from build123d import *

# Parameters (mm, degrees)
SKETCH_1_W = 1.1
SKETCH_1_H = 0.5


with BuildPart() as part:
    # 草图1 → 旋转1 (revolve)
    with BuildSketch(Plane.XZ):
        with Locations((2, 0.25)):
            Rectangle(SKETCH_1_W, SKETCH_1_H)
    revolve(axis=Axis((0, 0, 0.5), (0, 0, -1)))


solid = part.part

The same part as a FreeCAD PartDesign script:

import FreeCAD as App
import Part
import Sketcher


def add_polygon(sketch, points):
    """Adds a closed chain of lines whose ends are joined by coincident constraints."""
    first, n = sketch.GeometryCount, len(points)
    for a, b in zip(points, points[1:] + points[:1]):
        sketch.addGeometry(Part.LineSegment(App.Vector(*a, 0), App.Vector(*b, 0)), False)
    for i in range(n):
        sketch.addConstraint(Sketcher.Constraint("Coincident", first + i, 2, first + (i + 1) % n, 1))

doc = App.newDocument("Part")
params = doc.addObject("Spreadsheet::Sheet", "Params")
for row, (alias, value) in enumerate([
    ("sketch1_width", "1.1 mm"),
    ("sketch1_height", "0.5 mm"),
    ("revolution_angle", "360 deg"),
], start=1):
    params.set(f"A{row}", alias)
    params.set(f"B{row}", "=" + value)
    params.setAlias(f"B{row}", alias)

body = doc.addObject("PartDesign::Body", "Body")

sketch1 = doc.addObject("Sketcher::SketchObject", "Sketch")
body.addObject(sketch1)
sketch1.AttachmentSupport = (doc.XZ_Plane, [""])
sketch1.MapMode = "FlatFace"
add_polygon(sketch1, [(1.4, 0.5), (1.4, 0), (2.5, 0), (2.5, 0.5)])
sketch1.addConstraint([
    Sketcher.Constraint("Vertical", 0),
    Sketcher.Constraint("Horizontal", 1),
    Sketcher.Constraint("Vertical", 2),
    Sketcher.Constraint("Horizontal", 3),
    Sketcher.Constraint("PointOnObject", 0, 2, -1),
    Sketcher.Constraint("DistanceX", 1, 1, 1, 2, 1.1),
    Sketcher.Constraint("DistanceY", 0, 2, 0, 1, 0.5),
    Sketcher.Constraint("DistanceX", -1, 1, 0, 2, 1.45),
])
sketch1.setExpression("Constraints[9]", "Params.sketch1_width")
sketch1.setExpression("Constraints[10]", "Params.sketch1_height")
revolution = doc.addObject("PartDesign::Revolution", "Revolution")
body.addObject(revolution)
revolution.Profile = sketch1
revolution.ReferenceAxis = (sketch1, ["V_Axis"])
revolution.setExpression("Angle", "Params.revolution_angle")

doc.recompute()
